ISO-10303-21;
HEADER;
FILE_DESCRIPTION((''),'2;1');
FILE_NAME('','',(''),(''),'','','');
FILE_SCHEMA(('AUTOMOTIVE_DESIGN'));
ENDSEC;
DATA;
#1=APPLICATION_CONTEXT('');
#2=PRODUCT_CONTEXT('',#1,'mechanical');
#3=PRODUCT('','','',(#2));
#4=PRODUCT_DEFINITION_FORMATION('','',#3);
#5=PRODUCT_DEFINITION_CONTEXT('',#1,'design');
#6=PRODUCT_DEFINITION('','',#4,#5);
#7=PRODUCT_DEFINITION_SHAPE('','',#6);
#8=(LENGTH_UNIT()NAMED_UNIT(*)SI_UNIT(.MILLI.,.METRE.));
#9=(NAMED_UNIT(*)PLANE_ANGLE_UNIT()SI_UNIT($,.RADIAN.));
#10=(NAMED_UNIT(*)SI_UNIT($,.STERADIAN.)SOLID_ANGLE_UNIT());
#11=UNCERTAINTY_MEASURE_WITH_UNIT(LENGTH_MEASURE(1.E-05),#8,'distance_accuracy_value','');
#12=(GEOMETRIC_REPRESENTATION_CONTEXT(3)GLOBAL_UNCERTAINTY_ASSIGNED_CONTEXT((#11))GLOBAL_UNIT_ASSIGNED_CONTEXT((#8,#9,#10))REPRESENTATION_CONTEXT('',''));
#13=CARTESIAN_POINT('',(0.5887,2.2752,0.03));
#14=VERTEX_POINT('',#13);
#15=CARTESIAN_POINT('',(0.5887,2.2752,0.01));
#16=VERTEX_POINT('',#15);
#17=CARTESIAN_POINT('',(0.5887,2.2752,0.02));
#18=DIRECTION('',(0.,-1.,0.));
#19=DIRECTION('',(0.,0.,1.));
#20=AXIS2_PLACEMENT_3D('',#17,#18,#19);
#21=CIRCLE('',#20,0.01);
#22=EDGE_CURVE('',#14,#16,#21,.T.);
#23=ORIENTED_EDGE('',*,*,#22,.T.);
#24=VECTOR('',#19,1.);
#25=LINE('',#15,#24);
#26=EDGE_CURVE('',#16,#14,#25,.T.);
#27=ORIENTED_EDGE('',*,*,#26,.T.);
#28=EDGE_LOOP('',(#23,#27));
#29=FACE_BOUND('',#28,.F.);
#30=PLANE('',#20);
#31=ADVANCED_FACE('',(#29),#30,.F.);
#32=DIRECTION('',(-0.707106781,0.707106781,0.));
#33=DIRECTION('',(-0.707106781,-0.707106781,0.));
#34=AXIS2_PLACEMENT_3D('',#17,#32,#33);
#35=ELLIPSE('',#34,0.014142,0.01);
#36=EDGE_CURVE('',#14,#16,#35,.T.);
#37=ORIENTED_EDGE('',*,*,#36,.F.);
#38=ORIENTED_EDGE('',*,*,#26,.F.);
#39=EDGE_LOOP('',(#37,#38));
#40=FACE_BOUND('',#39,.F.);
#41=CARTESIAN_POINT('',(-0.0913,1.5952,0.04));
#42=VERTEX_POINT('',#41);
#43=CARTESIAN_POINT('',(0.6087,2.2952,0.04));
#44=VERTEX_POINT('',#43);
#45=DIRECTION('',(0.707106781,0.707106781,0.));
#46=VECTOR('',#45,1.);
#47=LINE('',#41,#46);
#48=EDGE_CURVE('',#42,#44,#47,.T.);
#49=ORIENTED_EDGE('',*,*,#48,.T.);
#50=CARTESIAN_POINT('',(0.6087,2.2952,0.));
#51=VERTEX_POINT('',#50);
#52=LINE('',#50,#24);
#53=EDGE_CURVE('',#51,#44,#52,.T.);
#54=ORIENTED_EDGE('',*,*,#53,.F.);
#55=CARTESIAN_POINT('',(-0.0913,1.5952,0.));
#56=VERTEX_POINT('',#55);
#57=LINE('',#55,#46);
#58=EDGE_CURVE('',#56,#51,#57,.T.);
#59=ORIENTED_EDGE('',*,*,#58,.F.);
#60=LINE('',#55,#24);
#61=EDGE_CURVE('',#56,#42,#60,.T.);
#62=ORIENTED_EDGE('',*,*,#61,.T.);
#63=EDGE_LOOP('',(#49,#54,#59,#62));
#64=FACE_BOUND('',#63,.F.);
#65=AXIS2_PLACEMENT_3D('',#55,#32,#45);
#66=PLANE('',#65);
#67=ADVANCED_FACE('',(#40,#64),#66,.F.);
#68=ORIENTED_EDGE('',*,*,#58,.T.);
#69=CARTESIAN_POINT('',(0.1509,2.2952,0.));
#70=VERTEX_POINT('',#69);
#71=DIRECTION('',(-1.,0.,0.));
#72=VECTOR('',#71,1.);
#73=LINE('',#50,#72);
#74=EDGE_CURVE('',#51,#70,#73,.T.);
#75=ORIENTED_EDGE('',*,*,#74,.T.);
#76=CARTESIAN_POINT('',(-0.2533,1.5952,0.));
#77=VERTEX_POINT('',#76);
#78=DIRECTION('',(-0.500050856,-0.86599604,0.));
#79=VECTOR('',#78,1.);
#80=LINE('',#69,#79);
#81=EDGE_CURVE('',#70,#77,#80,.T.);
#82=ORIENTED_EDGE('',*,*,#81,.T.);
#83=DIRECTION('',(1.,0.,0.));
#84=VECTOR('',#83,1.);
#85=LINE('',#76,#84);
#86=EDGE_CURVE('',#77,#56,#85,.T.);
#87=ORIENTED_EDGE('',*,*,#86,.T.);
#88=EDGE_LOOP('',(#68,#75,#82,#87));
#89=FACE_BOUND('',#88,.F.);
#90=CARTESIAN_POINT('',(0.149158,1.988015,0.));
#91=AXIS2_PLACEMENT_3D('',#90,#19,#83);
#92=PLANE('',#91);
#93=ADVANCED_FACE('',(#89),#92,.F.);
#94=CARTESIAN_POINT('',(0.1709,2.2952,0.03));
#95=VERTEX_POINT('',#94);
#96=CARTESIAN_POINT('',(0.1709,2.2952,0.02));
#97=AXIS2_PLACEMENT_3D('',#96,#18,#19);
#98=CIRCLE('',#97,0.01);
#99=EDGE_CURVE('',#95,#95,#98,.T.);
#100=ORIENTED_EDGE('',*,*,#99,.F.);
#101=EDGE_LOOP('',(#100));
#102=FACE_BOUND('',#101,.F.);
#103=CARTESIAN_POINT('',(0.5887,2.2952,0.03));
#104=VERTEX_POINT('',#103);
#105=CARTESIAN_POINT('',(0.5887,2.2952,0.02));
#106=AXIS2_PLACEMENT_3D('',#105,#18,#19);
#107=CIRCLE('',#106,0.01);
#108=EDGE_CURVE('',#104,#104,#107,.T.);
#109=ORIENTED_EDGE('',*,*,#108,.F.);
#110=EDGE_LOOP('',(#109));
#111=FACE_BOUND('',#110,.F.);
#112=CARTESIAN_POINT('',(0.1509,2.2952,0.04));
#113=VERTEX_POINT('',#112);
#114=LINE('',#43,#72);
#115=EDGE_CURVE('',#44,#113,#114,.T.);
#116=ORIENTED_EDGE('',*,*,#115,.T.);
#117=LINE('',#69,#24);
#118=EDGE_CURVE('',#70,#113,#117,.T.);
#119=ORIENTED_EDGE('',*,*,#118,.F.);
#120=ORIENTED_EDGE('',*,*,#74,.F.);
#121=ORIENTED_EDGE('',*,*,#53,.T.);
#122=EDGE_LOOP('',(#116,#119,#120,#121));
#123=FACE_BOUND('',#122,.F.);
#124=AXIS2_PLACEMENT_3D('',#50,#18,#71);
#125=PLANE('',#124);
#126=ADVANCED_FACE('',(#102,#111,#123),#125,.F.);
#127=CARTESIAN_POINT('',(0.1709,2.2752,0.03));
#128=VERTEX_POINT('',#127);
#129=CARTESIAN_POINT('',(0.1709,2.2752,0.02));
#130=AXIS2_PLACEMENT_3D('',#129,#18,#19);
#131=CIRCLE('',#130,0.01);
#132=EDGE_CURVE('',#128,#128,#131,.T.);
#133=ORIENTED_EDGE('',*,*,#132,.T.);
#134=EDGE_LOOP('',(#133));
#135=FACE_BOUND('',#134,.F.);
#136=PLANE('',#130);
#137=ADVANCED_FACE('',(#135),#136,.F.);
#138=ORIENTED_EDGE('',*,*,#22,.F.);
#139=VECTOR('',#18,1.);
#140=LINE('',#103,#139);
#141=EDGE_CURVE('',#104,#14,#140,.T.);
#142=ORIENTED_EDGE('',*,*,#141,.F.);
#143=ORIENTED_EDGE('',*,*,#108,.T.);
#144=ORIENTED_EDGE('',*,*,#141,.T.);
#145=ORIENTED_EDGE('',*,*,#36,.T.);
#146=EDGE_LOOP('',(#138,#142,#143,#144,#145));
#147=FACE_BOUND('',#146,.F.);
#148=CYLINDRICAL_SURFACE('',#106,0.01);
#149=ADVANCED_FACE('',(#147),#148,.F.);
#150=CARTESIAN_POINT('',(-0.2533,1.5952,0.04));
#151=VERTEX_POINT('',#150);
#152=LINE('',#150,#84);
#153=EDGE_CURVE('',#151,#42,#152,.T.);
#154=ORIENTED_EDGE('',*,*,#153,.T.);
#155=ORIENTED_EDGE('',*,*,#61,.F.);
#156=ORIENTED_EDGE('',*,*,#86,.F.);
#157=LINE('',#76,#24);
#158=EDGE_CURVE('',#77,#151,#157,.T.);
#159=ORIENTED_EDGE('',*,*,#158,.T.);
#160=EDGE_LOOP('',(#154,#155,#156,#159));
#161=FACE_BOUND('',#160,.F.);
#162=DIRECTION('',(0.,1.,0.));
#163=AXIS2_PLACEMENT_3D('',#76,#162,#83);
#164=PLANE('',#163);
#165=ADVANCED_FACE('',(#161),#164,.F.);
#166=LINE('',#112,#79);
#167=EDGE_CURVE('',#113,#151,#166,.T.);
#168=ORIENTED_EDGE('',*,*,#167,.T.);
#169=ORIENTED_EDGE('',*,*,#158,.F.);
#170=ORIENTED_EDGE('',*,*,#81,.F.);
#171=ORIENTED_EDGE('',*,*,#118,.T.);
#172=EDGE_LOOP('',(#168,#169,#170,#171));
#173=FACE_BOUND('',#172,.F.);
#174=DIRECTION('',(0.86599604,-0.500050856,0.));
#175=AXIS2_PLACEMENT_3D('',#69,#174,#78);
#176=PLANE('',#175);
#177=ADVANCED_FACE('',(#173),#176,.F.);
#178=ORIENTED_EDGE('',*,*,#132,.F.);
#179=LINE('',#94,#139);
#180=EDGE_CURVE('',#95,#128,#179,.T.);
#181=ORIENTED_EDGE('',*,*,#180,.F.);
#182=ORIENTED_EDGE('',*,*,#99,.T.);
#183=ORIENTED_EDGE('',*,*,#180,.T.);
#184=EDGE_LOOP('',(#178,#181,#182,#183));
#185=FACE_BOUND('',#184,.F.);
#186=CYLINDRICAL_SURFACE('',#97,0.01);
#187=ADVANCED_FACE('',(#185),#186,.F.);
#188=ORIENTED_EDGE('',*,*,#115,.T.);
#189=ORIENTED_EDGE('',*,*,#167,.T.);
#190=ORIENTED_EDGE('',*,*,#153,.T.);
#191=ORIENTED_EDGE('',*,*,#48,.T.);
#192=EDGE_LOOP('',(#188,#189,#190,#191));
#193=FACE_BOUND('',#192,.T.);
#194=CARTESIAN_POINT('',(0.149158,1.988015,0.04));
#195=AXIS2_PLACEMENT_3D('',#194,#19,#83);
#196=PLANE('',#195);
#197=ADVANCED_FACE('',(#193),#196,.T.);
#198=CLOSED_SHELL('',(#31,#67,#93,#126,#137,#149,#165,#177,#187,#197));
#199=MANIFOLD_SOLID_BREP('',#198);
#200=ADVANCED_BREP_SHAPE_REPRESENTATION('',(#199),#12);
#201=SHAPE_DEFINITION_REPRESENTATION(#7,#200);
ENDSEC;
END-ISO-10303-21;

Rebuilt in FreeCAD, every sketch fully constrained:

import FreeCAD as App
import Part
import Sketcher
Q = App.Units.Quantity


def add_polygon(sketch, points):
    """Adds a closed chain of lines whose ends are joined by coincident constraints."""
    first, n = sketch.GeometryCount, len(points)
    for a, b in zip(points, points[1:] + points[:1]):
        sketch.addGeometry(Part.LineSegment(App.Vector(*a, 0), App.Vector(*b, 0)), False)
    for i in range(n):
        sketch.addConstraint(Sketcher.Constraint("Coincident", first + i, 2, first + (i + 1) % n, 1))

doc = App.newDocument("Part")
params = doc.addObject("Spreadsheet::Sheet", "Params")
for row, (alias, value) in enumerate([
    ("pad1_length", "0.04 mm"),
    ("sketch2_diameter", "0.02 mm"),
    ("hole_diameter", "0.02 mm"),
    ("hole_depth", "0.02 mm"),
    ("sketch3_diameter", "0.02 mm"),
    ("hole2_diameter", "0.02 mm"),
    ("hole2_depth", "0.02 mm"),
], start=1):
    params.set(f"A{row}", alias)
    params.set(f"B{row}", "=" + value)
    params.setAlias(f"B{row}", alias)

body = doc.addObject("PartDesign::Body", "Body")

# Sketch on XY plane
sketch1 = body.newObject("Sketcher::SketchObject", "Sketch")
sketch1.AttachmentSupport = (doc.getObject("XY_Plane"), [""])
sketch1.MapMode = "FlatFace"
add_polygon(sketch1, [(-0.2533, 1.5952), (-0.0913, 1.5952), (0.6087, 2.2952), (0.1509, 2.2952)])  # lines 0-3
sketch1.addConstraint([
    Sketcher.Constraint("Horizontal", 0),
    Sketcher.Constraint("Horizontal", 2),
    Sketcher.Constraint("Angle", 1, Q("45 deg")),
    Sketcher.Constraint("DistanceX", 0, 2, 1, 2, 0.7),
    Sketcher.Constraint("DistanceX", 0, 1, 0, 2, 0.162),
    Sketcher.Constraint("DistanceX", 2, 2, 2, 1, 0.4578),
    Sketcher.Constraint("DistanceX", -1, 1, 2, 2, 0.151),
    Sketcher.Constraint("DistanceY", -1, 1, 0, 2, 1.5952),
])
pad1 = body.newObject("PartDesign::Pad", "Pad")
pad1.Profile = sketch1
pad1.setExpression("Length", "Params.pad1_length")

# Sketch on XZ plane
sketch2 = body.newObject("Sketcher::SketchObject", "Sketch001")
sketch2.AttachmentSupport = (doc.getObject("XZ_Plane"), [""])
sketch2.MapMode = "FlatFace"
sketch2.AttachmentOffset = App.Placement(App.Vector(0, 0, -2.2952), App.Rotation())
sketch2.addGeometry(Part.Circle(App.Vector(0.5887, 0.02, 0), App.Vector(0, 0, 1), 0.01), False)
sketch2.addConstraint([
    Sketcher.Constraint("Diameter", 0, 0.02),
    Sketcher.Constraint("DistanceY", -1, 1, 0, 3, 0.02),
    Sketcher.Constraint("DistanceX", -1, 1, 0, 3, 0.5887),
])
sketch2.setExpression("Constraints[0]", "Params.sketch2_diameter")
doc.recompute()
hole = body.newObject("PartDesign::Hole", "Hole")
hole.Profile = sketch2
hole.ThreadType = "None"
hole.setExpression("Diameter", "Params.hole_diameter")
hole.DepthType = "Dimension"
hole.setExpression("Depth", "Params.hole_depth")
hole.DrillPoint = "Flat"
hole.Reversed = True

# Sketch on XZ plane
sketch3 = body.newObject("Sketcher::SketchObject", "Sketch002")
sketch3.AttachmentSupport = (doc.getObject("XZ_Plane"), [""])
sketch3.MapMode = "FlatFace"
sketch3.AttachmentOffset = App.Placement(App.Vector(0, 0, -2.2952), App.Rotation())
sketch3.addGeometry(Part.Circle(App.Vector(0.1709, 0.02, 0), App.Vector(0, 0, 1), 0.01), False)
sketch3.addConstraint([
    Sketcher.Constraint("Diameter", 0, 0.02),
    Sketcher.Constraint("DistanceY", -1, 1, 0, 3, 0.02),
    Sketcher.Constraint("DistanceX", -1, 1, 0, 3, 0.171),
])
sketch3.setExpression("Constraints[0]", "Params.sketch3_diameter")
doc.recompute()
hole2 = body.newObject("PartDesign::Hole", "Hole001")
hole2.Profile = sketch3
hole2.ThreadType = "None"
hole2.setExpression("Diameter", "Params.hole2_diameter")
hole2.DepthType = "Dimension"
hole2.setExpression("Depth", "Params.hole2_depth")
hole2.DrillPoint = "Flat"
hole2.Reversed = True

doc.recompute()
